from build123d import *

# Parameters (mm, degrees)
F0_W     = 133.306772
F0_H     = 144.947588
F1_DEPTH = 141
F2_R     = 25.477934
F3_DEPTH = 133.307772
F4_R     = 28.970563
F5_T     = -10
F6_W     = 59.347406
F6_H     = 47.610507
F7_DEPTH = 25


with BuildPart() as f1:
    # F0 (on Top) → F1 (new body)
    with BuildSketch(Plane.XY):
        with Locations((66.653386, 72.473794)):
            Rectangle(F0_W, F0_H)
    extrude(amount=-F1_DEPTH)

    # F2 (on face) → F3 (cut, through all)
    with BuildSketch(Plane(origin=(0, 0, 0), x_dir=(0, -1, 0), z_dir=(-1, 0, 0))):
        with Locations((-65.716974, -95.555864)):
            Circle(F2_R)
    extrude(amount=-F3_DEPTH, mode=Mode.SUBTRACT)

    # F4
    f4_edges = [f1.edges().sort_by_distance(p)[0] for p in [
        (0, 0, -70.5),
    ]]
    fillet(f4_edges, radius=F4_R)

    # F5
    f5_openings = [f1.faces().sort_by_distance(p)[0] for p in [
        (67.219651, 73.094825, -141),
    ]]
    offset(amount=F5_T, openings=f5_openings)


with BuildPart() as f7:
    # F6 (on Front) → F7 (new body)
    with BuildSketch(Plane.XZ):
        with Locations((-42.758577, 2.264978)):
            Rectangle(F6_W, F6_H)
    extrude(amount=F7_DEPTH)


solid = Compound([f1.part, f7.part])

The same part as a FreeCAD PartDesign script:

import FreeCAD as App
import Part
import Sketcher
from FreeCAD import Vector
Q = App.Units.Quantity


def edges_at(feature, points):
    """Names of the edges that pass closest to the given points."""
    edges = feature.Shape.Edges
    near = lambda p: min(range(len(edges)), key=lambda i: edges[i].distToShape(Part.Vertex(*p))[0])
    return sorted({f"Edge{near(p) + 1}" for p in points})


def faces_at(feature, points):
    """Names of the faces that lie closest to the given points."""
    faces = feature.Shape.Faces
    near = lambda p: min(range(len(faces)), key=lambda i: faces[i].distToShape(Part.Vertex(*p))[0])
    return sorted({f"Face{near(p) + 1}" for p in points})


def add_polygon(sketch, points):
    """Adds a closed chain of lines whose ends are joined by coincident constraints."""
    first, n = sketch.GeometryCount, len(points)
    for a, b in zip(points, points[1:] + points[:1]):
        sketch.addGeometry(Part.LineSegment(App.Vector(*a, 0), App.Vector(*b, 0)), False)
    for i in range(n):
        sketch.addConstraint(Sketcher.Constraint("Coincident", first + i, 2, first + (i + 1) % n, 1))

doc = App.newDocument("Part")
body = doc.addObject("PartDesign::Body", "Body")

# Sketch on XY plane
sketch1 = body.newObject("Sketcher::SketchObject", "Sketch")
sketch1.AttachmentSupport = (doc.getObject("XY_Plane"), [""])
sketch1.MapMode = "FlatFace"
add_polygon(sketch1, [(0, 144.947588), (0, 0), (133.306772, 0), (133.306772, 144.947588)])  # lines 0-3
sketch1.addConstraint(Sketcher.Constraint("Vertical", 0))
sketch1.addConstraint(Sketcher.Constraint("Horizontal", 1))
sketch1.addConstraint(Sketcher.Constraint("Vertical", 2))
sketch1.addConstraint(Sketcher.Constraint("Horizontal", 3))
sketch1.addConstraint(Sketcher.Constraint("Coincident", 0, 2, -1, 1))
sketch1.addConstraint(Sketcher.Constraint("DistanceX", 1, 1, 1, 2, Q("133.306772 mm")))
sketch1.addConstraint(Sketcher.Constraint("DistanceY", 0, 2, 0, 1, Q("144.947588 mm")))
pad1 = body.newObject("PartDesign::Pad", "Pad")
pad1.Profile = sketch1
pad1.Length = 141
pad1.Reversed = True

# Sketch on YZ plane
sketch2 = body.newObject("Sketcher::SketchObject", "Sketch001")
sketch2.AttachmentSupport = (doc.getObject("YZ_Plane"), [""])
sketch2.MapMode = "FlatFace"
sketch2.addGeometry(Part.Circle(Vector(65.716974, -95.555864, 0), Vector(0, 0, 1), 25.477934), False)
sketch2.addConstraint(Sketcher.Constraint("Diameter", 0, Q("50.955868 mm")))
sketch2.addConstraint(Sketcher.Constraint("DistanceX", -1, 1, 0, 3, Q("65.716974 mm")))
sketch2.addConstraint(Sketcher.Constraint("DistanceY", 0, 3, -1, 1, Q("95.555864 mm")))
pocket1 = body.newObject("PartDesign::Pocket", "Pocket")
pocket1.Profile = sketch2
pocket1.Type = "ThroughAll"
pocket1.Reversed = True
doc.recompute()

fillet = body.newObject("PartDesign::Fillet", "Fillet")
fillet.Base = (pocket1, edges_at(pocket1, [(0, 0, -70.5)]))
fillet.Radius = 28.970563
doc.recompute()

thickness = body.newObject("PartDesign::Thickness", "Thickness")
thickness.Base = (fillet, faces_at(fillet, [(66.653, 72.474, -141)]))
thickness.Value = 10
thickness.Reversed = True
thickness.Join = "Arc"
body2 = doc.addObject("PartDesign::Body", "Body001")

# Sketch on XZ plane
sketch3 = body2.newObject("Sketcher::SketchObject", "Sketch002")
sketch3.AttachmentSupport = (doc.getObject("XZ_Plane001"), [""])
sketch3.MapMode = "FlatFace"
add_polygon(sketch3, [(-72.43228, 26.070231), (-72.43228, -21.540275), (-13.084874, -21.540275), (-13.084874, 26.070231)])  # lines 0-3
sketch3.addConstraint(Sketcher.Constraint("Vertical", 0))
sketch3.addConstraint(Sketcher.Constraint("Horizontal", 1))
sketch3.addConstraint(Sketcher.Constraint("Vertical", 2))
sketch3.addConstraint(Sketcher.Constraint("Horizontal", 3))
sketch3.addConstraint(Sketcher.Constraint("DistanceX", 1, 1, 1, 2, Q("59.347406 mm")))
sketch3.addConstraint(Sketcher.Constraint("DistanceY", 0, 2, 0, 1, Q("47.610507 mm")))
sketch3.addConstraint(Sketcher.Constraint("DistanceX", 0, 2, -1, 1, Q("72.43228 mm")))
sketch3.addConstraint(Sketcher.Constraint("DistanceY", -1, 1, 2, 2, Q("26.070231 mm")))
pad2 = body2.newObject("PartDesign::Pad", "Pad001")
pad2.Profile = sketch3
pad2.Length = 25

doc.recompute()
